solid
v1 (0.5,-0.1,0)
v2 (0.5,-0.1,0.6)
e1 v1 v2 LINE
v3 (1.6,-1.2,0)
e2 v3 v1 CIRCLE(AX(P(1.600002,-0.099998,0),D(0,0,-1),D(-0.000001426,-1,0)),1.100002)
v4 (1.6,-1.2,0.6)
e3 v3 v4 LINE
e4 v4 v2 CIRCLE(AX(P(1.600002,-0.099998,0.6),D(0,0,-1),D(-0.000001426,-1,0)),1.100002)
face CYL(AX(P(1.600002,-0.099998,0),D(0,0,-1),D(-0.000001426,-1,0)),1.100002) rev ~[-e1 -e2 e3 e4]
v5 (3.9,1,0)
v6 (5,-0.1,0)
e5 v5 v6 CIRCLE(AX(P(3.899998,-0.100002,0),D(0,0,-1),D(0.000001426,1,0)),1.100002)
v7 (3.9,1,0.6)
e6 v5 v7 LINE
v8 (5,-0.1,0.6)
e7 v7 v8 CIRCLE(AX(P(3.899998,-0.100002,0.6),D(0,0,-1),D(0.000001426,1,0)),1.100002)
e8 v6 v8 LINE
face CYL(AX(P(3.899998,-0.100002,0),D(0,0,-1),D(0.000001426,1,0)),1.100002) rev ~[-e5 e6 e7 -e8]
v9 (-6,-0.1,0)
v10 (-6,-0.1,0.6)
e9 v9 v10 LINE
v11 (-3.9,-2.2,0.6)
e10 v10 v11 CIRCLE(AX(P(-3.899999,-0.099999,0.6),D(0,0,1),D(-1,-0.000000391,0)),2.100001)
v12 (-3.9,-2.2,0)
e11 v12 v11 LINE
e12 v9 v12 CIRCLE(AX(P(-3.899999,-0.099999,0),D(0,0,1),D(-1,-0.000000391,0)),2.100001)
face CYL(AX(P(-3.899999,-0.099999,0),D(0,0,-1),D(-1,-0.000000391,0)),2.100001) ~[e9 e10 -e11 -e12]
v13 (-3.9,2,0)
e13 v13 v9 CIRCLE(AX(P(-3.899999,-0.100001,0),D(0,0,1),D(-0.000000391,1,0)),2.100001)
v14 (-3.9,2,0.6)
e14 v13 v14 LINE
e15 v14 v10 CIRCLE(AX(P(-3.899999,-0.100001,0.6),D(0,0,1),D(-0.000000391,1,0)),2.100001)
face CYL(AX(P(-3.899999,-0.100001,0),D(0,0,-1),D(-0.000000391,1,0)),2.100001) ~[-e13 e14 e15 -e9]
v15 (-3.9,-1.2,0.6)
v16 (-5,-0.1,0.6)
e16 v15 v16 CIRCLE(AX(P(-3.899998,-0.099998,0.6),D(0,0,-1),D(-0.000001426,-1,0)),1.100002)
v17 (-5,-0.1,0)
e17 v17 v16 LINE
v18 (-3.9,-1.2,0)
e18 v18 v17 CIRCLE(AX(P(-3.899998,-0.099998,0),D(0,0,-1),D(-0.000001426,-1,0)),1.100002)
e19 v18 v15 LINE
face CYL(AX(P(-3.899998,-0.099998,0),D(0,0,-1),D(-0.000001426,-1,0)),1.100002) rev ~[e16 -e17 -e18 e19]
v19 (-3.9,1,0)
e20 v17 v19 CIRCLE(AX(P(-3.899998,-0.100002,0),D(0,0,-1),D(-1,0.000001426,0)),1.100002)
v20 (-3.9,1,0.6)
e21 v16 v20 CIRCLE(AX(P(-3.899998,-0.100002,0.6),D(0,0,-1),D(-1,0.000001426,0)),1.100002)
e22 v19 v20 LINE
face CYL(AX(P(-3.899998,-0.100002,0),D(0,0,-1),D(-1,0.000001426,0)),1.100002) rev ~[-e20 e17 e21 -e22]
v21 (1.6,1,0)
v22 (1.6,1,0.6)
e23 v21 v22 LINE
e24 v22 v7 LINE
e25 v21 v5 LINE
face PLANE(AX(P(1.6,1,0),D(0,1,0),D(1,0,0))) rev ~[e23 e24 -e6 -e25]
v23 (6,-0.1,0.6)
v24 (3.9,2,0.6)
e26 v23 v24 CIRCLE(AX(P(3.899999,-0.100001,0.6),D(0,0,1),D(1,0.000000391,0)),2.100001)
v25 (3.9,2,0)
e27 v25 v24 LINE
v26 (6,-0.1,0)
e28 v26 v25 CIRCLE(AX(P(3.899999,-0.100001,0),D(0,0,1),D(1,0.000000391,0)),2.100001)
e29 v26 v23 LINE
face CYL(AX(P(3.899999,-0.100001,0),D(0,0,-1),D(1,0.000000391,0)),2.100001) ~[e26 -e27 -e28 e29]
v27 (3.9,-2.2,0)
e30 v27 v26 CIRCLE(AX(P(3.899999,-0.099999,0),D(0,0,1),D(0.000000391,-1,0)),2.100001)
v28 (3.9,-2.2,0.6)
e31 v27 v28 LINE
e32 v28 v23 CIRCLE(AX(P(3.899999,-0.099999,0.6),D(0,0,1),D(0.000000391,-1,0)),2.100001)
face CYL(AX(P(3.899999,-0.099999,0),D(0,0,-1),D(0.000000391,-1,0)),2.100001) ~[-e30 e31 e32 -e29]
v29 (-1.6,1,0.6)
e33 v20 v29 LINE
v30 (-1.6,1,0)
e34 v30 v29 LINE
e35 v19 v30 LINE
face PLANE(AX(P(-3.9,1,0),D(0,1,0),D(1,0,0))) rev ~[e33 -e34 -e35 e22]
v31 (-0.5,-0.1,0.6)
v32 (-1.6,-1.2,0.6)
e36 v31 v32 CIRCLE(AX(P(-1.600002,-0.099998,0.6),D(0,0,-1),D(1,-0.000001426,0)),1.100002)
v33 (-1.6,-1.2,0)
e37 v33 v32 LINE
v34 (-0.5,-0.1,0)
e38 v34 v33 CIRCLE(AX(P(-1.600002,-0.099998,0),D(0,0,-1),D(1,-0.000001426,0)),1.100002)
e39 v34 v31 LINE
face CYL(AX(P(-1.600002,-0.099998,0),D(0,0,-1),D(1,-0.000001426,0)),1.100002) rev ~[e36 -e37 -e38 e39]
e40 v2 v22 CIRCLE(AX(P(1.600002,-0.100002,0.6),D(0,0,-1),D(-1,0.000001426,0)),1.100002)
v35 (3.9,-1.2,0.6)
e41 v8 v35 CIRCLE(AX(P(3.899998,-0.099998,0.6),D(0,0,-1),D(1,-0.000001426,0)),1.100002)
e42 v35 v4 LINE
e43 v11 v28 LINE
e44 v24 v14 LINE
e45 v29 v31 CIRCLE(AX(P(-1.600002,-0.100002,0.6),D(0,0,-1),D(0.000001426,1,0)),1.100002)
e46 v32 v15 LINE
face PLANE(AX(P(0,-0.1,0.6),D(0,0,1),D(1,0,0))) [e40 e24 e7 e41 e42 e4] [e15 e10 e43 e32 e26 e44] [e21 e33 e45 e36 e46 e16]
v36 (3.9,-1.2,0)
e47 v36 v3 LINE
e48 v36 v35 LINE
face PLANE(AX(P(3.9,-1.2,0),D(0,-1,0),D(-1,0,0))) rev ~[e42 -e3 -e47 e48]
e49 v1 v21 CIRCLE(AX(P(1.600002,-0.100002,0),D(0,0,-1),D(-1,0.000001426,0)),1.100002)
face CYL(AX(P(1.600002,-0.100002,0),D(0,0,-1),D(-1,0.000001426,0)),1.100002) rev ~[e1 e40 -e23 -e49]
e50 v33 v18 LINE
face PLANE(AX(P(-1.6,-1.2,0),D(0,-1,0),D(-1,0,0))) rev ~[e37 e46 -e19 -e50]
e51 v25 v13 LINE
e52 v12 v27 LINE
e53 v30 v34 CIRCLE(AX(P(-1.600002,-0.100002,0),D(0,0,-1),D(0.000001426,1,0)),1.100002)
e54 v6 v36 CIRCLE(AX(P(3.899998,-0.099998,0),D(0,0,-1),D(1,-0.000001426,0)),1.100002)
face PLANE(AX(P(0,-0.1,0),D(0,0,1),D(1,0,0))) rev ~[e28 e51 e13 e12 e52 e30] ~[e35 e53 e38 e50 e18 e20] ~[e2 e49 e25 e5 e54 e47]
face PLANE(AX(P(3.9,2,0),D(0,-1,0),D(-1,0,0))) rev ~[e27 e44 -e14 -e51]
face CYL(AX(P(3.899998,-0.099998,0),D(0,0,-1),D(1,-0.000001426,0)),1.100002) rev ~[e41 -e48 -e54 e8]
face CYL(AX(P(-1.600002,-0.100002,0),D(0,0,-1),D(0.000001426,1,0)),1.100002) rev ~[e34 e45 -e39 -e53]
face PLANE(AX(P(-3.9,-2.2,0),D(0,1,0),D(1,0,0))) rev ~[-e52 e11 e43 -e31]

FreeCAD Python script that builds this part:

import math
import FreeCAD as App
import Part
import Sketcher
from FreeCAD import Vector
Q = App.Units.Quantity

doc = App.newDocument("Part")
params = doc.addObject("Spreadsheet::Sheet", "Params")
for row, (alias, value) in enumerate([
    ("sketch1_radius", "2.100001 mm"),
    ("sketch1_radius2", "1.100002 mm"),
    ("sketch1_width", "7.8 mm"),
    ("sketch1_width2", "2.3 mm"),
    ("pad1_length", "0.6 mm"),
], start=1):
    params.set(f"A{row}", alias)
    params.set(f"B{row}", "=" + value)
    params.setAlias(f"B{row}", alias)

body = doc.addObject("PartDesign::Body", "Body")

# Sketch on XY plane
sketch1 = doc.addObject("Sketcher::SketchObject", "Sketch")
body.addObject(sketch1)
sketch1.AttachmentSupport = (doc.XY_Plane, [""])
sketch1.MapMode = "FlatFace"
sketch1.addGeometry([
    Part.LineSegment(Vector(3.9, 2, 0), Vector(-3.9, 2, 0)),  # 0
    Part.ArcOfCircle(Part.Circle(Vector(-3.9, -0.1, 0), Vector(0, 0, 1), 2.1), math.radians(90), math.radians(180)),  # 1
    Part.ArcOfCircle(Part.Circle(Vector(-3.9, -0.1, 0), Vector(0, 0, 1), 2.1), math.radians(-180), math.radians(-90)),  # 2
    Part.LineSegment(Vector(-3.9, -2.2, 0), Vector(3.9, -2.2, 0)),  # 3
    Part.ArcOfCircle(Part.Circle(Vector(3.9, -0.1, 0), Vector(0, 0, 1), 2.1), math.radians(-90), math.radians(0)),  # 4
    Part.ArcOfCircle(Part.Circle(Vector(3.9, -0.1, 0), Vector(0, 0, 1), 2.1), math.radians(0), math.radians(90)),  # 5
    Part.ArcOfCircle(Part.Circle(Vector(-3.9, -0.1, 0), Vector(0, 0, 1), 1.1), math.radians(-180), math.radians(-90)),  # 6
    Part.ArcOfCircle(Part.Circle(Vector(-3.9, -0.1, 0), Vector(0, 0, 1), 1.1), math.radians(90), math.radians(180)),  # 7
    Part.LineSegment(Vector(-3.9, 1, 0), Vector(-1.6, 1, 0)),  # 8
    Part.ArcOfCircle(Part.Circle(Vector(-1.6, -0.1, 0), Vector(0, 0, 1), 1.1), math.radians(0), math.radians(90)),  # 9
    Part.ArcOfCircle(Part.Circle(Vector(-1.6, -0.1, 0), Vector(0, 0, 1), 1.1), math.radians(-90), math.radians(0)),  # 10
    Part.LineSegment(Vector(-1.6, -1.2, 0), Vector(-3.9, -1.2, 0)),  # 11
    Part.ArcOfCircle(Part.Circle(Vector(1.6, -0.1, 0), Vector(0, 0, 1), 1.1), math.radians(-180), math.radians(-90)),  # 12
    Part.ArcOfCircle(Part.Circle(Vector(1.6, -0.1, 0), Vector(0, 0, 1), 1.1), math.radians(90), math.radians(180)),  # 13
    Part.LineSegment(Vector(1.6, 1, 0), Vector(3.9, 1, 0)),  # 14
    Part.ArcOfCircle(Part.Circle(Vector(3.9, -0.1, 0), Vector(0, 0, 1), 1.1), math.radians(0), math.radians(90)),  # 15
    Part.ArcOfCircle(Part.Circle(Vector(3.9, -0.1, 0), Vector(0, 0, 1), 1.1), math.radians(-90), math.radians(0)),  # 16
    Part.LineSegment(Vector(3.9, -1.2, 0), Vector(1.6, -1.2, 0)),  # 17
], False)
sketch1.addConstraint([
    Sketcher.Constraint("Tangent", 0, 2, 1, 1),
    Sketcher.Constraint("Tangent", 1, 2, 2, 1),
    Sketcher.Constraint("Tangent", 2, 2, 3, 1),
    Sketcher.Constraint("Tangent", 3, 2, 4, 1),
    Sketcher.Constraint("Tangent", 4, 2, 5, 1),
    Sketcher.Constraint("Tangent", 5, 2, 0, 1),
    Sketcher.Constraint("Coincident", 6, 1, 7, 2),
    Sketcher.Constraint("Tangent", 7, 1, 8, 1),
    Sketcher.Constraint("Tangent", 8, 2, 9, 2),
    Sketcher.Constraint("Coincident", 9, 1, 10, 2),
    Sketcher.Constraint("Tangent", 10, 1, 11, 1),
    Sketcher.Constraint("Tangent", 11, 2, 6, 2),
    Sketcher.Constraint("Coincident", 12, 1, 13, 2),
    Sketcher.Constraint("Tangent", 13, 1, 14, 1),
    Sketcher.Constraint("Tangent", 14, 2, 15, 2),
    Sketcher.Constraint("Coincident", 15, 1, 16, 2),
    Sketcher.Constraint("Tangent", 16, 1, 17, 1),
    Sketcher.Constraint("Tangent", 17, 2, 12, 2),
    Sketcher.Constraint("Horizontal", 0),
    Sketcher.Constraint("Horizontal", 3),
    Sketcher.Constraint("Horizontal", 8),
    Sketcher.Constraint("Horizontal", 11),
    Sketcher.Constraint("Horizontal", 14),
    Sketcher.Constraint("Horizontal", 17),
    Sketcher.Constraint("Coincident", 6, 3, 1, 3),
    Sketcher.Constraint("Coincident", 7, 3, 1, 3),
    Sketcher.Constraint("Coincident", 10, 3, 9, 3),
    Sketcher.Constraint("Coincident", 13, 3, 12, 3),
    Sketcher.Constraint("Coincident", 15, 3, 4, 3),
    Sketcher.Constraint("Coincident", 16, 3, 4, 3),
    Sketcher.Constraint("Equal", 1, 2),
    Sketcher.Constraint("Equal", 2, 4),
    Sketcher.Constraint("Equal", 10, 12),
    Sketcher.Constraint("Symmetric", 1, 2, 4, 2, -2),
    Sketcher.Constraint("Symmetric", 9, 1, 12, 1, -2),
    Sketcher.Constraint("Horizontal", 16, 3, 1, 2),
    Sketcher.Constraint("Horizontal", 4, 2, 6, 1),
    Sketcher.Constraint("Horizontal", 6, 1, 9, 1),
    Sketcher.Constraint("Horizontal", 12, 1, 15, 1),
    Sketcher.Constraint("Radius", 1, Q("2.100001 mm")),
    Sketcher.Constraint("Radius", 6, Q("1.100002 mm")),
    Sketcher.Constraint("DistanceX", 0, 2, 0, 1, Q("7.8 mm")),
    Sketcher.Constraint("DistanceX", 8, 1, 8, 2, Q("2.3 mm")),
    Sketcher.Constraint("DistanceY", -1, 1, 0, 2, Q("2 mm")),
])
sketch1.setExpression("Constraints[39]", "Params.sketch1_radius")
sketch1.setExpression("Constraints[40]", "Params.sketch1_radius2")
sketch1.setExpression("Constraints[41]", "Params.sketch1_width")
sketch1.setExpression("Constraints[42]", "Params.sketch1_width2")
pad1 = doc.addObject("PartDesign::Pad", "Pad")
body.addObject(pad1)
pad1.Profile = sketch1
pad1.setExpression("Length", "Params.pad1_length")

doc.recompute()
